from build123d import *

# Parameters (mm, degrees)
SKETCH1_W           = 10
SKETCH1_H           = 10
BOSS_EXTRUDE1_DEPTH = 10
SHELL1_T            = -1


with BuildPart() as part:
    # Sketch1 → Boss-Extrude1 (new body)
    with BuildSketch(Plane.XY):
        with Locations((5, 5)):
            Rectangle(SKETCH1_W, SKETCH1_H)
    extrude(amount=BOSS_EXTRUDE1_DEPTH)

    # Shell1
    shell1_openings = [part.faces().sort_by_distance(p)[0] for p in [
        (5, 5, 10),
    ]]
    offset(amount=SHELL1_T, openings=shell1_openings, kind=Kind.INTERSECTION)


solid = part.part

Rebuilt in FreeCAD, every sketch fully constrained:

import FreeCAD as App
import Part
import Sketcher
from FreeCAD import Vector


def faces_at(feature, points):
    """Names of the faces that lie closest to the given points."""
    faces = feature.Shape.Faces
    near = lambda p: min(range(len(faces)), key=lambda i: faces[i].distToShape(Part.Vertex(*p))[0])
    return sorted({f"Face{near(p) + 1}" for p in points})

doc = App.newDocument("Part")
body = doc.addObject("PartDesign::Body", "Body")

sketch1 = body.newObject("Sketcher::SketchObject", "Sketch")
sketch1.AttachmentSupport = (doc.getObject("XY_Plane"), [""])
sketch1.MapMode = "FlatFace"
sketch1.addGeometry(Part.LineSegment(Vector(0, 10, 0), Vector(0, 0, 0)), False)
sketch1.addGeometry(Part.LineSegment(Vector(0, 0, 0), Vector(10, 0, 0)), False)
sketch1.addGeometry(Part.LineSegment(Vector(10, 0, 0), Vector(10, 10, 0)), False)
sketch1.addGeometry(Part.LineSegment(Vector(10, 10, 0), Vector(0, 10, 0)), False)
sketch1.addConstraint(Sketcher.Constraint("Coincident", 0, 2, 1, 1))
sketch1.addConstraint(Sketcher.Constraint("Coincident", 1, 2, 2, 1))
sketch1.addConstraint(Sketcher.Constraint("Coincident", 2, 2, 3, 1))
sketch1.addConstraint(Sketcher.Constraint("Coincident", 3, 2, 0, 1))
sketch1.addConstraint(Sketcher.Constraint("Vertical", 0))
sketch1.addConstraint(Sketcher.Constraint("Horizontal", 1))
sketch1.addConstraint(Sketcher.Constraint("Vertical", 2))
sketch1.addConstraint(Sketcher.Constraint("Horizontal", 3))
sketch1.addConstraint(Sketcher.Constraint("Coincident", 0, 2, -1, 1))
sketch1.addConstraint(Sketcher.Constraint("Equal", 3, 0))
sketch1.addConstraint(Sketcher.Constraint("DistanceX", 1, 1, 1, 2, 10.0))
pad1 = body.newObject("PartDesign::Pad", "Pad")
pad1.Profile = sketch1
pad1.Length = 10
doc.recompute()

thickness = body.newObject("PartDesign::Thickness", "Thickness")
thickness.Base = (pad1, faces_at(pad1, [(5, 5, 10)]))
thickness.Value = 1
thickness.Reversed = True
thickness.Join = "Intersection"

doc.recompute()
